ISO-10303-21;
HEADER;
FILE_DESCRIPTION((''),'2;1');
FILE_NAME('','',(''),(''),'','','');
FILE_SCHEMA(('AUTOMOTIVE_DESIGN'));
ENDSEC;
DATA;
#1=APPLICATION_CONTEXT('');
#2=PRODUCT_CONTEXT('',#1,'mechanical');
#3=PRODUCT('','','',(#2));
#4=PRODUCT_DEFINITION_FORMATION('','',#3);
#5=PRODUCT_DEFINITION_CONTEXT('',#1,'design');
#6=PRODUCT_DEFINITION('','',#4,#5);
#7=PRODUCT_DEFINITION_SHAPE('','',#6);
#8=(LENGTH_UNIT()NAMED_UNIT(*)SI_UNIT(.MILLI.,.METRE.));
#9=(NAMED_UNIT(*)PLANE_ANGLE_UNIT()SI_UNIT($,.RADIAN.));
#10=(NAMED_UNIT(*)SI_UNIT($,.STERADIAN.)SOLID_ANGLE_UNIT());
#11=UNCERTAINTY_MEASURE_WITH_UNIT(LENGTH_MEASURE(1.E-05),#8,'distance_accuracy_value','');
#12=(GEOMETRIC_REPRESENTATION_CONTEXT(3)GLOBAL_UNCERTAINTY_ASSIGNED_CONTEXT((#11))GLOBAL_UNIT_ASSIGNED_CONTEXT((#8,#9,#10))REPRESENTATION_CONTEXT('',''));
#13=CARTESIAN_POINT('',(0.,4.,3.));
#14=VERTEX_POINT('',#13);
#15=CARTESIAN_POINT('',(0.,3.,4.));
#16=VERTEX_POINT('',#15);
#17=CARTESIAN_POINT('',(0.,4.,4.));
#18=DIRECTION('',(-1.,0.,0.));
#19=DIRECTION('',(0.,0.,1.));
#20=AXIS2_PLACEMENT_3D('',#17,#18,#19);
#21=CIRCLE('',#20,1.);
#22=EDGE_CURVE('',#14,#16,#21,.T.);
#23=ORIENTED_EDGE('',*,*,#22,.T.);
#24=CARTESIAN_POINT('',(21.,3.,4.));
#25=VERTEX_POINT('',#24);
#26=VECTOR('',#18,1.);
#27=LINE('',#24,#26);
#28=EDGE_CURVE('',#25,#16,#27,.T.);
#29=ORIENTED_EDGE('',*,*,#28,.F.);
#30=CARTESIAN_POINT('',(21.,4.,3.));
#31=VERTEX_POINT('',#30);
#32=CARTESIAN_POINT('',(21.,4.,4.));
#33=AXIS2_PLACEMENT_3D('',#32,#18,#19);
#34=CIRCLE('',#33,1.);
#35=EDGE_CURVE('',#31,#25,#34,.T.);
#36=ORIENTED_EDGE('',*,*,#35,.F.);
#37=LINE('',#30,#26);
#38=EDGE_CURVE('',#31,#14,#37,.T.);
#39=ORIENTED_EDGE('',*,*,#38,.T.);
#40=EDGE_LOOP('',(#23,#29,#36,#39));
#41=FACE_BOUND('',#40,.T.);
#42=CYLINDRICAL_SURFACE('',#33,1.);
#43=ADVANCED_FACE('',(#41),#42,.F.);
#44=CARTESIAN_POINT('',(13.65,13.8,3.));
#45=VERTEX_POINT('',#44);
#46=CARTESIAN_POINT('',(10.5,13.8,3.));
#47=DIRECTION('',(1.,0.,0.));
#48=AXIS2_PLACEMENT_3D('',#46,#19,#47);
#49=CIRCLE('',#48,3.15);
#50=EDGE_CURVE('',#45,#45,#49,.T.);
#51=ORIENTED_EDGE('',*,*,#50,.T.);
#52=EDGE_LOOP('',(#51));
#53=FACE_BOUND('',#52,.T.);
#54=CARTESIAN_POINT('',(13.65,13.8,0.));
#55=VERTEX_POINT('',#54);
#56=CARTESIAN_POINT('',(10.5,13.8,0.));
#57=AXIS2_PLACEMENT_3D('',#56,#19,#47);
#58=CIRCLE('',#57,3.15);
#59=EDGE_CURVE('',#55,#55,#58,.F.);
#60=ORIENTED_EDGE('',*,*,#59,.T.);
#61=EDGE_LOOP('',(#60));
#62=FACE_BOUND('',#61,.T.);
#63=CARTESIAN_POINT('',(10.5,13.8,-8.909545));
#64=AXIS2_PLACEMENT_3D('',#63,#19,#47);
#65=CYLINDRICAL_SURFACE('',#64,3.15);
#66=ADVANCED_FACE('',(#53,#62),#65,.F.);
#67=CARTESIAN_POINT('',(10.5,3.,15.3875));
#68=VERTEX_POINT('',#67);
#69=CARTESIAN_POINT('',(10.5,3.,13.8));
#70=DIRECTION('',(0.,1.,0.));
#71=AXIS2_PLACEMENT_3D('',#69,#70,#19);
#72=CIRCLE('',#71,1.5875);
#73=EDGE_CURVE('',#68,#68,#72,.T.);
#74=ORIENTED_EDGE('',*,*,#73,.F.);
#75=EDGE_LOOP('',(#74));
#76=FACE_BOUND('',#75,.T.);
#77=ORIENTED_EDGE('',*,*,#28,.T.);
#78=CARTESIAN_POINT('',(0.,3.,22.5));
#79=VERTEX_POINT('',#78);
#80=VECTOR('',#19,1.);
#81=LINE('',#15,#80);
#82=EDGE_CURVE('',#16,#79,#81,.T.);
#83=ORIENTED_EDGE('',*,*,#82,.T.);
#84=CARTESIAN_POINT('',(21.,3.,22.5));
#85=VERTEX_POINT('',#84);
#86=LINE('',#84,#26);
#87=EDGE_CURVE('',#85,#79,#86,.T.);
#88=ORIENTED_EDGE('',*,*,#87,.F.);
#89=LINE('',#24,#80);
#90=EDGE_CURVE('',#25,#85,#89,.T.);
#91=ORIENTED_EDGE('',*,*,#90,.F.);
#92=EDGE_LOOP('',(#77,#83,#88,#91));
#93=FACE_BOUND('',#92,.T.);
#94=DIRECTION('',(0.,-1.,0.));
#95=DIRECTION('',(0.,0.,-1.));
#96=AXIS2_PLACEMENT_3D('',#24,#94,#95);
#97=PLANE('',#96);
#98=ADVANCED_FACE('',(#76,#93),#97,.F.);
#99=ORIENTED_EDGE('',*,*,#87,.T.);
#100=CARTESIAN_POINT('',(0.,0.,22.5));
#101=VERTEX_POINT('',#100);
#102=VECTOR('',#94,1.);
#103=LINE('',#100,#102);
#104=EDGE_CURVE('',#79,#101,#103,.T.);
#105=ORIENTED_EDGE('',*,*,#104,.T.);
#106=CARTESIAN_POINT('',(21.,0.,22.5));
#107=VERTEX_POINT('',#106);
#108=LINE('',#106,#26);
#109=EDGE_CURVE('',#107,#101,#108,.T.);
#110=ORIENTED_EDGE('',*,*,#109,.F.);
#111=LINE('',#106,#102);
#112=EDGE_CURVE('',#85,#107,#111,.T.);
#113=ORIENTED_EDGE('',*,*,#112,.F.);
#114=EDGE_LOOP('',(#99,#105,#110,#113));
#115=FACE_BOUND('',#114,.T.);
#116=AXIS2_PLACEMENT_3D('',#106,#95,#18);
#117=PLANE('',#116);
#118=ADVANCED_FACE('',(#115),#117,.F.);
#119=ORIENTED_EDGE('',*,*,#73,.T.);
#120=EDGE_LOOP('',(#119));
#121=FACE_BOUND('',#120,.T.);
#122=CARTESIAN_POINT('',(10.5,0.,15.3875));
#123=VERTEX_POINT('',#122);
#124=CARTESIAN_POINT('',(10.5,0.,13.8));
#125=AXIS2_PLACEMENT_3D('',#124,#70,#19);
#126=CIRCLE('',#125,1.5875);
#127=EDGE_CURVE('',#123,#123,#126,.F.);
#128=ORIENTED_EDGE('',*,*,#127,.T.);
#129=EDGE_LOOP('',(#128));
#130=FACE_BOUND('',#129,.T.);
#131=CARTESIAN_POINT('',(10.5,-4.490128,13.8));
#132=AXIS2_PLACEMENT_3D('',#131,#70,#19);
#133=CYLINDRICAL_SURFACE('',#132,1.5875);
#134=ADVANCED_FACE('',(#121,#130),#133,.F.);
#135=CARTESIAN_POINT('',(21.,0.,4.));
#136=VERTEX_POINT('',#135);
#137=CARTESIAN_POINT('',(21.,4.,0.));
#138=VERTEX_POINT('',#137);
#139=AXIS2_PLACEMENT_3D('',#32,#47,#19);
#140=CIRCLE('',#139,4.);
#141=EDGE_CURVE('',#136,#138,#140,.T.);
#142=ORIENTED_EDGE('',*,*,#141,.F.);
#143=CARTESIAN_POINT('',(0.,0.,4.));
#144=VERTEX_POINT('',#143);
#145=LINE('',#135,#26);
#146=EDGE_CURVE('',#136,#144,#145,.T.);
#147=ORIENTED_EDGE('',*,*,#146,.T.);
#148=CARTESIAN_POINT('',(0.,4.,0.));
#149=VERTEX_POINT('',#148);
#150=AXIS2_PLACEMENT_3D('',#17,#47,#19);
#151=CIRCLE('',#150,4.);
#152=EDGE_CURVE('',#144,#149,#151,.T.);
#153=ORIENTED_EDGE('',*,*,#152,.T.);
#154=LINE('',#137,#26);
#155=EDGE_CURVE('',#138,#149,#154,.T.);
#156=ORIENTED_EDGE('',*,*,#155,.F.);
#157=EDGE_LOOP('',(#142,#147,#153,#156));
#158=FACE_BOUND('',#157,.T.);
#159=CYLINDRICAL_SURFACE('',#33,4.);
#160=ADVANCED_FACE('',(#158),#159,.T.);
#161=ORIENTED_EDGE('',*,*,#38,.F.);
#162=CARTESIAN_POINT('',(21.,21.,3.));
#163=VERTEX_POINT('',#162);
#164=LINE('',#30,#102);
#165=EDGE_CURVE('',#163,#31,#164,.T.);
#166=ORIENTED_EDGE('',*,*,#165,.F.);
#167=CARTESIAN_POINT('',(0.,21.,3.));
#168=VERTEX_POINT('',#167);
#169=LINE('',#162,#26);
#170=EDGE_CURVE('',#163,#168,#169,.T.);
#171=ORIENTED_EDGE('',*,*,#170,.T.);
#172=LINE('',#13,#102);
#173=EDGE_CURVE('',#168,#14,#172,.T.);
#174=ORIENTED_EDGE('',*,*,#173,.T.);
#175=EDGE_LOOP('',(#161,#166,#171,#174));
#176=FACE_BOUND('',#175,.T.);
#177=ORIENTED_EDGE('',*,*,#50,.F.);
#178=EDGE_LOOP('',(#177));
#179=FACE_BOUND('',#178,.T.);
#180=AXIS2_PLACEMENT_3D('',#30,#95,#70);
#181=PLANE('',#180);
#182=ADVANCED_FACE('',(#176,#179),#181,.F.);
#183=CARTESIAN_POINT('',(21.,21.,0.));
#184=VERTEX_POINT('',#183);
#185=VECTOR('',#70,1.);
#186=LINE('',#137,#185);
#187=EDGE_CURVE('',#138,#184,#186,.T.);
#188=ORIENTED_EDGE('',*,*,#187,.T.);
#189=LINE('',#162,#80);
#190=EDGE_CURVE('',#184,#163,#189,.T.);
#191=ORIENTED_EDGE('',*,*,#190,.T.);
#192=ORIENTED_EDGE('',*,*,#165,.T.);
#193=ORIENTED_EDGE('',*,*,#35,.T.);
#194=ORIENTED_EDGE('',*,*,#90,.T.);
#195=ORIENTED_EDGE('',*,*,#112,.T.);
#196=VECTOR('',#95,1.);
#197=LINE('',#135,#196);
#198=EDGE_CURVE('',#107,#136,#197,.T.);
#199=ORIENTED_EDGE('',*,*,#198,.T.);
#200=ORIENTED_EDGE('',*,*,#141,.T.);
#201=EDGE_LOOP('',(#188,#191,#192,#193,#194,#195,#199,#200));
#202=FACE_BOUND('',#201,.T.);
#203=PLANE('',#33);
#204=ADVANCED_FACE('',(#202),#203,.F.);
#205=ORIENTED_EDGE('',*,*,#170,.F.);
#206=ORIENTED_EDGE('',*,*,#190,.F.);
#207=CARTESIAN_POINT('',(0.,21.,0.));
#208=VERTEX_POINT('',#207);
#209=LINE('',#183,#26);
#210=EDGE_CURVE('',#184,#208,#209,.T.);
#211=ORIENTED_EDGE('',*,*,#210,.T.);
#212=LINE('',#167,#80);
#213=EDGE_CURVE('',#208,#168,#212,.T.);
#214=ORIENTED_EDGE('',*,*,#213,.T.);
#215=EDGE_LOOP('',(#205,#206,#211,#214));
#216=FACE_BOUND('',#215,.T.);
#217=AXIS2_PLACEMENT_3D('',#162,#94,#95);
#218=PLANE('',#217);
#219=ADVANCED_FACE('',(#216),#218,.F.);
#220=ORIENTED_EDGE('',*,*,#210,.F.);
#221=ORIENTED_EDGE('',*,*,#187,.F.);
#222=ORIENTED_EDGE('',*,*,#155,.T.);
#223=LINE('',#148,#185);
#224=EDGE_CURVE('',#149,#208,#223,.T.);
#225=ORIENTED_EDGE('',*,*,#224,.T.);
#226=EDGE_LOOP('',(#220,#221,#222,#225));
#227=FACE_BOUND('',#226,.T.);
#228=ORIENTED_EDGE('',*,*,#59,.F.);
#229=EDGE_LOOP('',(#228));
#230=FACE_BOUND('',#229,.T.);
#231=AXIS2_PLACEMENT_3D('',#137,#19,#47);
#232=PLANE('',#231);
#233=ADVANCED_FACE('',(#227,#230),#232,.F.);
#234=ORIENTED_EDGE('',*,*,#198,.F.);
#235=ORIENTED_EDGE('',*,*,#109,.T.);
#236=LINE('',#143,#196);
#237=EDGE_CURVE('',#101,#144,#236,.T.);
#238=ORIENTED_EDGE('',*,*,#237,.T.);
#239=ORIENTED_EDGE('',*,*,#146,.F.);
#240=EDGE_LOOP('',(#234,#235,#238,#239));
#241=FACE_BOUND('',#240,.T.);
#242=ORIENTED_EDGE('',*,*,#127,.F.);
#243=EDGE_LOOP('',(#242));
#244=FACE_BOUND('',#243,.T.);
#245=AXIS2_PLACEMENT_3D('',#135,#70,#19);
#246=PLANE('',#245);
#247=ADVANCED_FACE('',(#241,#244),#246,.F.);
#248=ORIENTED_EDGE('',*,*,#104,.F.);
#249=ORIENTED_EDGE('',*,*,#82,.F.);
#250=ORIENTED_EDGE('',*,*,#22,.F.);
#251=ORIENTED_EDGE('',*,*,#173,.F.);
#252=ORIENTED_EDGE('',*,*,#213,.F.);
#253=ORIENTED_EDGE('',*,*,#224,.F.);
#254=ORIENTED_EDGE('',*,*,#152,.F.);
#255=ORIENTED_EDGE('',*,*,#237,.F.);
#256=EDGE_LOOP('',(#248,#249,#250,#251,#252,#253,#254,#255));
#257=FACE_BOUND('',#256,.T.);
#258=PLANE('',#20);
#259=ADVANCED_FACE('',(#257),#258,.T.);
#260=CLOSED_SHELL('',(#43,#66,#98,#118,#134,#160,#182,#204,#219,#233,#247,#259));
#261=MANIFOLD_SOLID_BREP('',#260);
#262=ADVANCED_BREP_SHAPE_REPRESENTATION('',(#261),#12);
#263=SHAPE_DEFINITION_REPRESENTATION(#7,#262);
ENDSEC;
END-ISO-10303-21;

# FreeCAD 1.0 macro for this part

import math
import FreeCAD as App
import Part
import Sketcher

doc = App.newDocument("Part")
body = doc.addObject("PartDesign::Body", "Body")

# Sketch on YZ plane
sketch1 = body.newObject("Sketcher::SketchObject", "Sketch")
sketch1.AttachmentSupport = (doc.getObject("YZ_Plane"), [""])
sketch1.MapMode = "FlatFace"
sketch1.addGeometry(Part.LineSegment(App.Vector(4, 0, 0), App.Vector(21, 0, 0)), False)
sketch1.addGeometry(Part.LineSegment(App.Vector(21, 0, 0), App.Vector(21, 3, 0)), False)
sketch1.addGeometry(Part.LineSegment(App.Vector(21, 3, 0), App.Vector(4, 3, 0)), False)
sketch1.addGeometry(Part.ArcOfCircle(Part.Circle(App.Vector(4, 4, 0), App.Vector(0, 0, 1), 1), math.radians(-180), math.radians(-90)), False)
sketch1.addGeometry(Part.LineSegment(App.Vector(3, 4, 0), App.Vector(3, 22.5, 0)), False)
sketch1.addGeometry(Part.LineSegment(App.Vector(3, 22.5, 0), App.Vector(0, 22.5, 0)), False)
sketch1.addGeometry(Part.LineSegment(App.Vector(0, 22.5, 0), App.Vector(0, 4, 0)), False)
sketch1.addGeometry(Part.ArcOfCircle(Part.Circle(App.Vector(4, 4, 0), App.Vector(0, 0, 1), 4), math.radians(180), math.radians(270)), False)
sketch1.addConstraint(Sketcher.Constraint("Coincident", 0, 2, 1, 1))
sketch1.addConstraint(Sketcher.Constraint("Coincident", 1, 2, 2, 1))
sketch1.addConstraint(Sketcher.Constraint("Tangent", 2, 2, 3, 2))
sketch1.addConstraint(Sketcher.Constraint("Tangent", 3, 1, 4, 1))
sketch1.addConstraint(Sketcher.Constraint("Coincident", 4, 2, 5, 1))
sketch1.addConstraint(Sketcher.Constraint("Coincident", 5, 2, 6, 1))
sketch1.addConstraint(Sketcher.Constraint("Tangent", 6, 2, 7, 1))
sketch1.addConstraint(Sketcher.Constraint("Tangent", 7, 2, 0, 1))
sketch1.addConstraint(Sketcher.Constraint("Horizontal", 0))
sketch1.addConstraint(Sketcher.Constraint("Vertical", 1))
sketch1.addConstraint(Sketcher.Constraint("Horizontal", 2))
sketch1.addConstraint(Sketcher.Constraint("Vertical", 4))
sketch1.addConstraint(Sketcher.Constraint("Horizontal", 5))
sketch1.addConstraint(Sketcher.Constraint("Vertical", 6))
sketch1.addConstraint(Sketcher.Constraint("Coincident", 7, 3, 3, 3))
sketch1.addConstraint(Sketcher.Constraint("PointOnObject", 0, 2, -1))
sketch1.addConstraint(Sketcher.Constraint("PointOnObject", 5, 2, -2))
sketch1.addConstraint(Sketcher.Constraint("Radius", 3, 1.0))
sketch1.addConstraint(Sketcher.Constraint("Radius", 7, 4.0))
sketch1.addConstraint(Sketcher.Constraint("DistanceX", 0, 1, 0, 2, 17.0))
sketch1.addConstraint(Sketcher.Constraint("DistanceY", 4, 1, 4, 2, 18.5))
pad1 = body.newObject("PartDesign::Pad", "Pad")
pad1.Profile = sketch1
pad1.Length = 21

# Sketch on XZ plane
sketch2 = body.newObject("Sketcher::SketchObject", "Sketch001")
sketch2.AttachmentSupport = (doc.getObject("XZ_Plane"), [""])
sketch2.MapMode = "FlatFace"
sketch2.AttachmentOffset = App.Placement(App.Vector(0, 0, -3), App.Rotation())
sketch2.addGeometry(Part.Circle(App.Vector(10.5, 13.8, 0), App.Vector(0, 0, 1), 1.5875), False)
sketch2.addConstraint(Sketcher.Constraint("Diameter", 0, 3.175))
sketch2.addConstraint(Sketcher.Constraint("DistanceX", -1, 1, 0, 3, 10.5))
sketch2.addConstraint(Sketcher.Constraint("DistanceY", -1, 1, 0, 3, 13.8))
pocket1 = body.newObject("PartDesign::Pocket", "Pocket")
pocket1.Profile = sketch2
pocket1.Length = 3
pocket1.Reversed = True

# Sketch on XY plane
sketch3 = body.newObject("Sketcher::SketchObject", "Sketch002")
sketch3.AttachmentSupport = (doc.getObject("XY_Plane"), [""])
sketch3.MapMode = "FlatFace"
sketch3.AttachmentOffset = App.Placement(App.Vector(0, 0, 3), App.Rotation())
sketch3.addGeometry(Part.Circle(App.Vector(10.5, 13.8, 0), App.Vector(0, 0, 1), 3.15), False)
sketch3.addConstraint(Sketcher.Constraint("Diameter", 0, 6.3))
sketch3.addConstraint(Sketcher.Constraint("DistanceX", -1, 1, 0, 3, 10.5))
sketch3.addConstraint(Sketcher.Constraint("DistanceY", -1, 1, 0, 3, 13.8))
pocket2 = body.newObject("PartDesign::Pocket", "Pocket001")
pocket2.Profile = sketch3
pocket2.Length = 3

doc.recompute()
